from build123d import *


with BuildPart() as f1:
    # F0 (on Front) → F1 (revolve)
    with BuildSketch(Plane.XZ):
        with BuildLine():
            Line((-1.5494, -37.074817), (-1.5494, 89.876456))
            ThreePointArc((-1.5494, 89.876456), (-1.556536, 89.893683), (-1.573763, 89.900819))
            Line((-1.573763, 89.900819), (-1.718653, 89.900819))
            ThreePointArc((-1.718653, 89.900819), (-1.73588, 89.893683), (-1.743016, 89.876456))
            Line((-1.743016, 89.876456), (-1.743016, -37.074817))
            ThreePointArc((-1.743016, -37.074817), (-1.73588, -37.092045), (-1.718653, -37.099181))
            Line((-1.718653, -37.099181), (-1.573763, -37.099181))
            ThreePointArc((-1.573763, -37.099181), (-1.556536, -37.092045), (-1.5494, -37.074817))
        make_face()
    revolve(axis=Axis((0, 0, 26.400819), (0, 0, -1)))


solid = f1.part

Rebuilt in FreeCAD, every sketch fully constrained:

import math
import FreeCAD as App
import Part
import Sketcher
Q = App.Units.Quantity

doc = App.newDocument("Part")
body = doc.addObject("PartDesign::Body", "Body")

# Sketch on XZ plane
sketch1 = body.newObject("Sketcher::SketchObject", "Sketch")
sketch1.AttachmentSupport = (doc.getObject("XZ_Plane"), [""])
sketch1.MapMode = "FlatFace"
sketch1.addGeometry([
    Part.LineSegment(App.Vector(-1.5494, -37.074817, 0), App.Vector(-1.5494, 89.876456, 0)),  # 0
    Part.ArcOfCircle(Part.Circle(App.Vector(-1.573764, 89.876455, 0), App.Vector(0, 0, 1), 0.024364), math.radians(0.001947), math.radians(89.998053)),  # 1
    Part.LineSegment(App.Vector(-1.573763, 89.900819, 0), App.Vector(-1.718653, 89.900819, 0)),  # 2
    Part.ArcOfCircle(Part.Circle(App.Vector(-1.718652, 89.876455, 0), App.Vector(0, 0, 1), 0.024364), math.radians(90.001947), math.radians(179.998053)),  # 3
    Part.LineSegment(App.Vector(-1.743016, 89.876456, 0), App.Vector(-1.743016, -37.074817, 0)),  # 4
    Part.ArcOfCircle(Part.Circle(App.Vector(-1.718652, -37.074817, 0), App.Vector(0, 0, 1), 0.024364), math.radians(179.999596), math.radians(269.998053)),  # 5
    Part.LineSegment(App.Vector(-1.718653, -37.099181, 0), App.Vector(-1.573763, -37.099181, 0)),  # 6
    Part.ArcOfCircle(Part.Circle(App.Vector(-1.573764, -37.074817, 0), App.Vector(0, 0, 1), 0.024364), math.radians(-89.998053), math.radians(0.000404)),  # 7
], False)
sketch1.addConstraint([
    Sketcher.Constraint("Coincident", 0, 2, 1, 1),
    Sketcher.Constraint("Coincident", 1, 2, 2, 1),
    Sketcher.Constraint("Coincident", 2, 2, 3, 1),
    Sketcher.Constraint("Coincident", 3, 2, 4, 1),
    Sketcher.Constraint("Coincident", 4, 2, 5, 1),
    Sketcher.Constraint("Coincident", 5, 2, 6, 1),
    Sketcher.Constraint("Coincident", 6, 2, 7, 1),
    Sketcher.Constraint("Coincident", 7, 2, 0, 1),
    Sketcher.Constraint("Vertical", 0),
    Sketcher.Constraint("Horizontal", 2),
    Sketcher.Constraint("Vertical", 4),
    Sketcher.Constraint("Horizontal", 6),
    Sketcher.Constraint("Equal", 1, 3),
    Sketcher.Constraint("Equal", 3, 5),
    Sketcher.Constraint("Equal", 5, 7),
    Sketcher.Constraint("Horizontal", 3, 3, 0, 2),
    Sketcher.Constraint("Horizontal", 0, 2, 3, 2),
    Sketcher.Constraint("Horizontal", 7, 3, 4, 2),
    Sketcher.Constraint("Horizontal", 4, 2, 7, 2),
    Sketcher.Constraint("Vertical", 7, 3, 1, 2),
    Sketcher.Constraint("Vertical", 5, 3, 2, 2),
    Sketcher.Constraint("Vertical", 2, 2, 5, 2),
    Sketcher.Constraint("Vertical", 1, 2, 6, 2),
    Sketcher.Constraint("Radius", 1, Q("0.024364 mm")),
    Sketcher.Constraint("DistanceX", 2, 2, 2, 1, Q("0.14489 mm")),
    Sketcher.Constraint("DistanceX", 0, 2, -1, 1, Q("1.5494 mm")),
    Sketcher.Constraint("DistanceY", 0, 1, 0, 2, Q("126.951273 mm")),
    Sketcher.Constraint("DistanceY", -1, 1, 1, 2, Q("89.900819 mm")),
])
revolution = body.newObject("PartDesign::Revolution", "Revolution")
revolution.Profile = sketch1
revolution.ReferenceAxis = (sketch1, ["V_Axis"])
revolution.Angle = 360

doc.recompute()
